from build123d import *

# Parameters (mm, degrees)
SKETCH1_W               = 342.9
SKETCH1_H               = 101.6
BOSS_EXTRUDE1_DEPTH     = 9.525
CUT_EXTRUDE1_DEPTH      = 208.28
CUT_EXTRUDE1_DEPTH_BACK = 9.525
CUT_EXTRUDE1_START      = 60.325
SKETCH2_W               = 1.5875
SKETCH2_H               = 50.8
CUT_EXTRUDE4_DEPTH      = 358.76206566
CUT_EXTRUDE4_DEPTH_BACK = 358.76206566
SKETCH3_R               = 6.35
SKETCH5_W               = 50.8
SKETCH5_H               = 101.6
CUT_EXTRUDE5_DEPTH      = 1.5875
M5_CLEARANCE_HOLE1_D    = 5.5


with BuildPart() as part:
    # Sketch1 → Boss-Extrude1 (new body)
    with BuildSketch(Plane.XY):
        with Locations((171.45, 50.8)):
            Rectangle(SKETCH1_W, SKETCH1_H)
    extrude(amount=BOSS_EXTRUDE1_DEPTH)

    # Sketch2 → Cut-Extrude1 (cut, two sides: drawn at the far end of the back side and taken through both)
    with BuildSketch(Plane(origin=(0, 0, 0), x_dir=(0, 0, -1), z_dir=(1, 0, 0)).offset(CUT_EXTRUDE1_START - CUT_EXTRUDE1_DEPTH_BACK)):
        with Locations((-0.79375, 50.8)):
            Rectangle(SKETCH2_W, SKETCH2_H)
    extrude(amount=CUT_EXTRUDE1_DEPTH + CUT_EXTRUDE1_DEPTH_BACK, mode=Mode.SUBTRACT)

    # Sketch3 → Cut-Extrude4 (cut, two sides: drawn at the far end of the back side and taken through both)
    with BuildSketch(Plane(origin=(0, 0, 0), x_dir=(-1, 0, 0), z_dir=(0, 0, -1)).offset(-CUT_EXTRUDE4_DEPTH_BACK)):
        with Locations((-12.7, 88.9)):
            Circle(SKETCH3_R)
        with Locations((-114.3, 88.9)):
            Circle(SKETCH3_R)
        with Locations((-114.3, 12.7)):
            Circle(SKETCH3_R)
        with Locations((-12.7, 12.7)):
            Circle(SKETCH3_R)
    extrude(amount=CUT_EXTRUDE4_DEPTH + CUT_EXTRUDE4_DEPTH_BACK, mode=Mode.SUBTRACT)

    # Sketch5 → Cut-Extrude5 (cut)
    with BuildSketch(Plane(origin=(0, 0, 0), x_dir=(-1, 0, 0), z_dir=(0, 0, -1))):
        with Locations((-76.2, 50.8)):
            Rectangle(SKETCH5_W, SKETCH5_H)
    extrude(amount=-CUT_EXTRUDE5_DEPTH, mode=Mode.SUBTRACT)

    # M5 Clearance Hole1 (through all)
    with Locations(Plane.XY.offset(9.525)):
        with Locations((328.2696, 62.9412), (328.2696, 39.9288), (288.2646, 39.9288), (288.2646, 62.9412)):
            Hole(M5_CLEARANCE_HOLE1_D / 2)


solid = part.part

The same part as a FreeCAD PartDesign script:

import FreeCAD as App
import Part
import Sketcher

V = App.Vector
Q = App.Units.Quantity


def add_polygon(sketch, points):
    """Adds a closed chain of lines whose ends are joined by coincident constraints."""
    first, n = sketch.GeometryCount, len(points)
    for a, b in zip(points, points[1:] + points[:1]):
        sketch.addGeometry(Part.LineSegment(App.Vector(*a, 0), App.Vector(*b, 0)), False)
    for i in range(n):
        sketch.addConstraint(Sketcher.Constraint("Coincident", first + i, 2, first + (i + 1) % n, 1))

doc = App.newDocument("Part")
body = doc.addObject("PartDesign::Body", "Body")

# Sketch on XY plane
sketch1 = body.newObject("Sketcher::SketchObject", "Sketch")
sketch1.AttachmentSupport = (doc.getObject("XY_Plane"), [""])
sketch1.MapMode = "FlatFace"
add_polygon(sketch1, [(0, 101.6), (0, 0), (342.9, 0), (342.9, 101.6)])  # lines 0-3
sketch1.addConstraint(Sketcher.Constraint("Vertical", 0))
sketch1.addConstraint(Sketcher.Constraint("Horizontal", 1))
sketch1.addConstraint(Sketcher.Constraint("Vertical", 2))
sketch1.addConstraint(Sketcher.Constraint("Horizontal", 3))
sketch1.addConstraint(Sketcher.Constraint("Coincident", 0, 2, -1, 1))
sketch1.addConstraint(Sketcher.Constraint("DistanceY", 0, 2, 0, 1, Q("4 in")))
sketch1.addConstraint(Sketcher.Constraint("DistanceX", 1, 1, 1, 2, Q("13.5 in")))
pad1 = body.newObject("PartDesign::Pad", "Pad")
pad1.Profile = sketch1
pad1.Length = Q("0.375 in")

# Sketch on YZ plane
sketch2 = body.newObject("Sketcher::SketchObject", "Sketch001")
sketch2.AttachmentSupport = (doc.getObject("YZ_Plane"), [""])
sketch2.MapMode = "FlatFace"
sketch2.AttachmentOffset = App.Placement(V(0, 0, 2.375 * 25.4), App.Rotation())
add_polygon(sketch2, [(76.2, 1.5875), (25.4, 1.5875), (25.4, 0), (76.2, 0)])  # lines 0-3
sketch2.addConstraint(Sketcher.Constraint("Horizontal", 0))
sketch2.addConstraint(Sketcher.Constraint("Vertical", 1))
sketch2.addConstraint(Sketcher.Constraint("Horizontal", 2))
sketch2.addConstraint(Sketcher.Constraint("Vertical", 3))
sketch2.addConstraint(Sketcher.Constraint("PointOnObject", 1, 2, -1))
sketch2.addConstraint(Sketcher.Constraint("DistanceX", 0, 2, 0, 1, Q("2 in")))
sketch2.addConstraint(Sketcher.Constraint("DistanceX", -1, 1, 0, 2, Q("1 in")))
sketch2.addConstraint(Sketcher.Constraint("DistanceY", 1, 2, 1, 1, Q("0.0625 in")))
pocket1 = body.newObject("PartDesign::Pocket", "Pocket")
pocket1.Profile = sketch2
pocket1.Type = "TwoLengths"
pocket1.Length = Q("8.2 in")
pocket1.Length2 = Q("0.375 in")
pocket1.Reversed = True

# Sketch on XY plane
sketch3 = body.newObject("Sketcher::SketchObject", "Sketch002")
sketch3.AttachmentSupport = (doc.getObject("XY_Plane"), [""])
sketch3.MapMode = "FlatFace"
sketch3.addGeometry(Part.Circle(V(12.7, 88.9, 0), V(0, 0, 1), 6.35), False)
sketch3.addGeometry(Part.Circle(V(114.3, 88.9, 0), V(0, 0, 1), 6.35), False)
sketch3.addGeometry(Part.Circle(V(114.3, 12.7, 0), V(0, 0, 1), 6.35), False)
sketch3.addGeometry(Part.Circle(V(12.7, 12.7, 0), V(0, 0, 1), 6.35), False)
sketch3.addConstraint(Sketcher.Constraint("Equal", 0, 1))
sketch3.addConstraint(Sketcher.Constraint("Equal", 1, 2))
sketch3.addConstraint(Sketcher.Constraint("Equal", 2, 3))
sketch3.addConstraint(Sketcher.Constraint("Horizontal", 0, 3, 1, 3))
sketch3.addConstraint(Sketcher.Constraint("Horizontal", 2, 3, 3, 3))
sketch3.addConstraint(Sketcher.Constraint("Vertical", 1, 3, 2, 3))
sketch3.addConstraint(Sketcher.Constraint("Vertical", 0, 3, 3, 3))
sketch3.addConstraint(Sketcher.Constraint("Diameter", 0, Q("0.5 in")))
sketch3.addConstraint(Sketcher.Constraint("DistanceX", 0, 3, 1, 3, Q("4 in")))
sketch3.addConstraint(Sketcher.Constraint("DistanceY", 2, 3, 1, 3, Q("3 in")))
sketch3.addConstraint(Sketcher.Constraint("DistanceX", -1, 1, 0, 3, Q("0.5 in")))
sketch3.addConstraint(Sketcher.Constraint("DistanceY", -1, 1, 0, 3, Q("3.5 in")))
pocket2 = body.newObject("PartDesign::Pocket", "Pocket001")
pocket2.Profile = sketch3
pocket2.Type = "ThroughAll"
pocket2.Midplane = True

# Sketch on XY plane
sketch4 = body.newObject("Sketcher::SketchObject", "Sketch003")
sketch4.AttachmentSupport = (doc.getObject("XY_Plane"), [""])
sketch4.MapMode = "FlatFace"
add_polygon(sketch4, [(101.6, 101.6), (101.6, 0), (50.8, 0), (50.8, 101.6)])  # lines 0-3
sketch4.addConstraint(Sketcher.Constraint("Vertical", 0))
sketch4.addConstraint(Sketcher.Constraint("Horizontal", 1))
sketch4.addConstraint(Sketcher.Constraint("Vertical", 2))
sketch4.addConstraint(Sketcher.Constraint("Horizontal", 3))
sketch4.addConstraint(Sketcher.Constraint("PointOnObject", 0, 2, -1))
sketch4.addConstraint(Sketcher.Constraint("DistanceX", 1, 2, 1, 1, Q("2 in")))
sketch4.addConstraint(Sketcher.Constraint("DistanceY", 0, 2, 0, 1, Q("4 in")))
sketch4.addConstraint(Sketcher.Constraint("DistanceX", -1, 1, 0, 2, Q("4 in")))
pocket3 = body.newObject("PartDesign::Pocket", "Pocket002")
pocket3.Profile = sketch4
pocket3.Length = Q("0.0625 in")
pocket3.Reversed = True

# Sketch on XY plane
sketch5 = body.newObject("Sketcher::SketchObject", "Sketch004")
sketch5.AttachmentSupport = (doc.getObject("XY_Plane"), [""])
sketch5.MapMode = "FlatFace"
sketch5.AttachmentOffset = App.Placement(V(0, 0, 0.375 * 25.4), App.Rotation())
sketch5.addGeometry(Part.Circle(V(328.2696, 62.9412, 0), V(0, 0, 1), 2.75), False)
sketch5.addGeometry(Part.Circle(V(328.2696, 39.9288, 0), V(0, 0, 1), 2.75), False)
sketch5.addGeometry(Part.Circle(V(288.2646, 39.9288, 0), V(0, 0, 1), 2.75), False)
sketch5.addGeometry(Part.Circle(V(288.2646, 62.9412, 0), V(0, 0, 1), 2.75), False)
sketch5.addConstraint(Sketcher.Constraint("Equal", 0, 1))
sketch5.addConstraint(Sketcher.Constraint("Equal", 1, 2))
sketch5.addConstraint(Sketcher.Constraint("Equal", 2, 3))
sketch5.addConstraint(Sketcher.Constraint("Horizontal", 1, 3, 2, 3))
sketch5.addConstraint(Sketcher.Constraint("Horizontal", 0, 3, 3, 3))
sketch5.addConstraint(Sketcher.Constraint("Vertical", 0, 3, 1, 3))
sketch5.addConstraint(Sketcher.Constraint("Vertical", 2, 3, 3, 3))
sketch5.addConstraint(Sketcher.Constraint("Diameter", 0, 5.5))
sketch5.addConstraint(Sketcher.Constraint("DistanceX", -1, 1, 0, 3, Q("12.924 in")))
sketch5.addConstraint(Sketcher.Constraint("DistanceY", -1, 1, 0, 3, Q("2.478 in")))
sketch5.addConstraint(Sketcher.Constraint("DistanceY", -1, 1, 1, 3, Q("1.572 in")))
sketch5.addConstraint(Sketcher.Constraint("DistanceX", -1, 1, 2, 3, Q("11.349 in")))
doc.recompute()
hole = body.newObject("PartDesign::Hole", "Hole")
hole.Profile = sketch5
hole.ThreadType = "None"
hole.Diameter = 5.5
hole.DepthType = "ThroughAll"

doc.recompute()
